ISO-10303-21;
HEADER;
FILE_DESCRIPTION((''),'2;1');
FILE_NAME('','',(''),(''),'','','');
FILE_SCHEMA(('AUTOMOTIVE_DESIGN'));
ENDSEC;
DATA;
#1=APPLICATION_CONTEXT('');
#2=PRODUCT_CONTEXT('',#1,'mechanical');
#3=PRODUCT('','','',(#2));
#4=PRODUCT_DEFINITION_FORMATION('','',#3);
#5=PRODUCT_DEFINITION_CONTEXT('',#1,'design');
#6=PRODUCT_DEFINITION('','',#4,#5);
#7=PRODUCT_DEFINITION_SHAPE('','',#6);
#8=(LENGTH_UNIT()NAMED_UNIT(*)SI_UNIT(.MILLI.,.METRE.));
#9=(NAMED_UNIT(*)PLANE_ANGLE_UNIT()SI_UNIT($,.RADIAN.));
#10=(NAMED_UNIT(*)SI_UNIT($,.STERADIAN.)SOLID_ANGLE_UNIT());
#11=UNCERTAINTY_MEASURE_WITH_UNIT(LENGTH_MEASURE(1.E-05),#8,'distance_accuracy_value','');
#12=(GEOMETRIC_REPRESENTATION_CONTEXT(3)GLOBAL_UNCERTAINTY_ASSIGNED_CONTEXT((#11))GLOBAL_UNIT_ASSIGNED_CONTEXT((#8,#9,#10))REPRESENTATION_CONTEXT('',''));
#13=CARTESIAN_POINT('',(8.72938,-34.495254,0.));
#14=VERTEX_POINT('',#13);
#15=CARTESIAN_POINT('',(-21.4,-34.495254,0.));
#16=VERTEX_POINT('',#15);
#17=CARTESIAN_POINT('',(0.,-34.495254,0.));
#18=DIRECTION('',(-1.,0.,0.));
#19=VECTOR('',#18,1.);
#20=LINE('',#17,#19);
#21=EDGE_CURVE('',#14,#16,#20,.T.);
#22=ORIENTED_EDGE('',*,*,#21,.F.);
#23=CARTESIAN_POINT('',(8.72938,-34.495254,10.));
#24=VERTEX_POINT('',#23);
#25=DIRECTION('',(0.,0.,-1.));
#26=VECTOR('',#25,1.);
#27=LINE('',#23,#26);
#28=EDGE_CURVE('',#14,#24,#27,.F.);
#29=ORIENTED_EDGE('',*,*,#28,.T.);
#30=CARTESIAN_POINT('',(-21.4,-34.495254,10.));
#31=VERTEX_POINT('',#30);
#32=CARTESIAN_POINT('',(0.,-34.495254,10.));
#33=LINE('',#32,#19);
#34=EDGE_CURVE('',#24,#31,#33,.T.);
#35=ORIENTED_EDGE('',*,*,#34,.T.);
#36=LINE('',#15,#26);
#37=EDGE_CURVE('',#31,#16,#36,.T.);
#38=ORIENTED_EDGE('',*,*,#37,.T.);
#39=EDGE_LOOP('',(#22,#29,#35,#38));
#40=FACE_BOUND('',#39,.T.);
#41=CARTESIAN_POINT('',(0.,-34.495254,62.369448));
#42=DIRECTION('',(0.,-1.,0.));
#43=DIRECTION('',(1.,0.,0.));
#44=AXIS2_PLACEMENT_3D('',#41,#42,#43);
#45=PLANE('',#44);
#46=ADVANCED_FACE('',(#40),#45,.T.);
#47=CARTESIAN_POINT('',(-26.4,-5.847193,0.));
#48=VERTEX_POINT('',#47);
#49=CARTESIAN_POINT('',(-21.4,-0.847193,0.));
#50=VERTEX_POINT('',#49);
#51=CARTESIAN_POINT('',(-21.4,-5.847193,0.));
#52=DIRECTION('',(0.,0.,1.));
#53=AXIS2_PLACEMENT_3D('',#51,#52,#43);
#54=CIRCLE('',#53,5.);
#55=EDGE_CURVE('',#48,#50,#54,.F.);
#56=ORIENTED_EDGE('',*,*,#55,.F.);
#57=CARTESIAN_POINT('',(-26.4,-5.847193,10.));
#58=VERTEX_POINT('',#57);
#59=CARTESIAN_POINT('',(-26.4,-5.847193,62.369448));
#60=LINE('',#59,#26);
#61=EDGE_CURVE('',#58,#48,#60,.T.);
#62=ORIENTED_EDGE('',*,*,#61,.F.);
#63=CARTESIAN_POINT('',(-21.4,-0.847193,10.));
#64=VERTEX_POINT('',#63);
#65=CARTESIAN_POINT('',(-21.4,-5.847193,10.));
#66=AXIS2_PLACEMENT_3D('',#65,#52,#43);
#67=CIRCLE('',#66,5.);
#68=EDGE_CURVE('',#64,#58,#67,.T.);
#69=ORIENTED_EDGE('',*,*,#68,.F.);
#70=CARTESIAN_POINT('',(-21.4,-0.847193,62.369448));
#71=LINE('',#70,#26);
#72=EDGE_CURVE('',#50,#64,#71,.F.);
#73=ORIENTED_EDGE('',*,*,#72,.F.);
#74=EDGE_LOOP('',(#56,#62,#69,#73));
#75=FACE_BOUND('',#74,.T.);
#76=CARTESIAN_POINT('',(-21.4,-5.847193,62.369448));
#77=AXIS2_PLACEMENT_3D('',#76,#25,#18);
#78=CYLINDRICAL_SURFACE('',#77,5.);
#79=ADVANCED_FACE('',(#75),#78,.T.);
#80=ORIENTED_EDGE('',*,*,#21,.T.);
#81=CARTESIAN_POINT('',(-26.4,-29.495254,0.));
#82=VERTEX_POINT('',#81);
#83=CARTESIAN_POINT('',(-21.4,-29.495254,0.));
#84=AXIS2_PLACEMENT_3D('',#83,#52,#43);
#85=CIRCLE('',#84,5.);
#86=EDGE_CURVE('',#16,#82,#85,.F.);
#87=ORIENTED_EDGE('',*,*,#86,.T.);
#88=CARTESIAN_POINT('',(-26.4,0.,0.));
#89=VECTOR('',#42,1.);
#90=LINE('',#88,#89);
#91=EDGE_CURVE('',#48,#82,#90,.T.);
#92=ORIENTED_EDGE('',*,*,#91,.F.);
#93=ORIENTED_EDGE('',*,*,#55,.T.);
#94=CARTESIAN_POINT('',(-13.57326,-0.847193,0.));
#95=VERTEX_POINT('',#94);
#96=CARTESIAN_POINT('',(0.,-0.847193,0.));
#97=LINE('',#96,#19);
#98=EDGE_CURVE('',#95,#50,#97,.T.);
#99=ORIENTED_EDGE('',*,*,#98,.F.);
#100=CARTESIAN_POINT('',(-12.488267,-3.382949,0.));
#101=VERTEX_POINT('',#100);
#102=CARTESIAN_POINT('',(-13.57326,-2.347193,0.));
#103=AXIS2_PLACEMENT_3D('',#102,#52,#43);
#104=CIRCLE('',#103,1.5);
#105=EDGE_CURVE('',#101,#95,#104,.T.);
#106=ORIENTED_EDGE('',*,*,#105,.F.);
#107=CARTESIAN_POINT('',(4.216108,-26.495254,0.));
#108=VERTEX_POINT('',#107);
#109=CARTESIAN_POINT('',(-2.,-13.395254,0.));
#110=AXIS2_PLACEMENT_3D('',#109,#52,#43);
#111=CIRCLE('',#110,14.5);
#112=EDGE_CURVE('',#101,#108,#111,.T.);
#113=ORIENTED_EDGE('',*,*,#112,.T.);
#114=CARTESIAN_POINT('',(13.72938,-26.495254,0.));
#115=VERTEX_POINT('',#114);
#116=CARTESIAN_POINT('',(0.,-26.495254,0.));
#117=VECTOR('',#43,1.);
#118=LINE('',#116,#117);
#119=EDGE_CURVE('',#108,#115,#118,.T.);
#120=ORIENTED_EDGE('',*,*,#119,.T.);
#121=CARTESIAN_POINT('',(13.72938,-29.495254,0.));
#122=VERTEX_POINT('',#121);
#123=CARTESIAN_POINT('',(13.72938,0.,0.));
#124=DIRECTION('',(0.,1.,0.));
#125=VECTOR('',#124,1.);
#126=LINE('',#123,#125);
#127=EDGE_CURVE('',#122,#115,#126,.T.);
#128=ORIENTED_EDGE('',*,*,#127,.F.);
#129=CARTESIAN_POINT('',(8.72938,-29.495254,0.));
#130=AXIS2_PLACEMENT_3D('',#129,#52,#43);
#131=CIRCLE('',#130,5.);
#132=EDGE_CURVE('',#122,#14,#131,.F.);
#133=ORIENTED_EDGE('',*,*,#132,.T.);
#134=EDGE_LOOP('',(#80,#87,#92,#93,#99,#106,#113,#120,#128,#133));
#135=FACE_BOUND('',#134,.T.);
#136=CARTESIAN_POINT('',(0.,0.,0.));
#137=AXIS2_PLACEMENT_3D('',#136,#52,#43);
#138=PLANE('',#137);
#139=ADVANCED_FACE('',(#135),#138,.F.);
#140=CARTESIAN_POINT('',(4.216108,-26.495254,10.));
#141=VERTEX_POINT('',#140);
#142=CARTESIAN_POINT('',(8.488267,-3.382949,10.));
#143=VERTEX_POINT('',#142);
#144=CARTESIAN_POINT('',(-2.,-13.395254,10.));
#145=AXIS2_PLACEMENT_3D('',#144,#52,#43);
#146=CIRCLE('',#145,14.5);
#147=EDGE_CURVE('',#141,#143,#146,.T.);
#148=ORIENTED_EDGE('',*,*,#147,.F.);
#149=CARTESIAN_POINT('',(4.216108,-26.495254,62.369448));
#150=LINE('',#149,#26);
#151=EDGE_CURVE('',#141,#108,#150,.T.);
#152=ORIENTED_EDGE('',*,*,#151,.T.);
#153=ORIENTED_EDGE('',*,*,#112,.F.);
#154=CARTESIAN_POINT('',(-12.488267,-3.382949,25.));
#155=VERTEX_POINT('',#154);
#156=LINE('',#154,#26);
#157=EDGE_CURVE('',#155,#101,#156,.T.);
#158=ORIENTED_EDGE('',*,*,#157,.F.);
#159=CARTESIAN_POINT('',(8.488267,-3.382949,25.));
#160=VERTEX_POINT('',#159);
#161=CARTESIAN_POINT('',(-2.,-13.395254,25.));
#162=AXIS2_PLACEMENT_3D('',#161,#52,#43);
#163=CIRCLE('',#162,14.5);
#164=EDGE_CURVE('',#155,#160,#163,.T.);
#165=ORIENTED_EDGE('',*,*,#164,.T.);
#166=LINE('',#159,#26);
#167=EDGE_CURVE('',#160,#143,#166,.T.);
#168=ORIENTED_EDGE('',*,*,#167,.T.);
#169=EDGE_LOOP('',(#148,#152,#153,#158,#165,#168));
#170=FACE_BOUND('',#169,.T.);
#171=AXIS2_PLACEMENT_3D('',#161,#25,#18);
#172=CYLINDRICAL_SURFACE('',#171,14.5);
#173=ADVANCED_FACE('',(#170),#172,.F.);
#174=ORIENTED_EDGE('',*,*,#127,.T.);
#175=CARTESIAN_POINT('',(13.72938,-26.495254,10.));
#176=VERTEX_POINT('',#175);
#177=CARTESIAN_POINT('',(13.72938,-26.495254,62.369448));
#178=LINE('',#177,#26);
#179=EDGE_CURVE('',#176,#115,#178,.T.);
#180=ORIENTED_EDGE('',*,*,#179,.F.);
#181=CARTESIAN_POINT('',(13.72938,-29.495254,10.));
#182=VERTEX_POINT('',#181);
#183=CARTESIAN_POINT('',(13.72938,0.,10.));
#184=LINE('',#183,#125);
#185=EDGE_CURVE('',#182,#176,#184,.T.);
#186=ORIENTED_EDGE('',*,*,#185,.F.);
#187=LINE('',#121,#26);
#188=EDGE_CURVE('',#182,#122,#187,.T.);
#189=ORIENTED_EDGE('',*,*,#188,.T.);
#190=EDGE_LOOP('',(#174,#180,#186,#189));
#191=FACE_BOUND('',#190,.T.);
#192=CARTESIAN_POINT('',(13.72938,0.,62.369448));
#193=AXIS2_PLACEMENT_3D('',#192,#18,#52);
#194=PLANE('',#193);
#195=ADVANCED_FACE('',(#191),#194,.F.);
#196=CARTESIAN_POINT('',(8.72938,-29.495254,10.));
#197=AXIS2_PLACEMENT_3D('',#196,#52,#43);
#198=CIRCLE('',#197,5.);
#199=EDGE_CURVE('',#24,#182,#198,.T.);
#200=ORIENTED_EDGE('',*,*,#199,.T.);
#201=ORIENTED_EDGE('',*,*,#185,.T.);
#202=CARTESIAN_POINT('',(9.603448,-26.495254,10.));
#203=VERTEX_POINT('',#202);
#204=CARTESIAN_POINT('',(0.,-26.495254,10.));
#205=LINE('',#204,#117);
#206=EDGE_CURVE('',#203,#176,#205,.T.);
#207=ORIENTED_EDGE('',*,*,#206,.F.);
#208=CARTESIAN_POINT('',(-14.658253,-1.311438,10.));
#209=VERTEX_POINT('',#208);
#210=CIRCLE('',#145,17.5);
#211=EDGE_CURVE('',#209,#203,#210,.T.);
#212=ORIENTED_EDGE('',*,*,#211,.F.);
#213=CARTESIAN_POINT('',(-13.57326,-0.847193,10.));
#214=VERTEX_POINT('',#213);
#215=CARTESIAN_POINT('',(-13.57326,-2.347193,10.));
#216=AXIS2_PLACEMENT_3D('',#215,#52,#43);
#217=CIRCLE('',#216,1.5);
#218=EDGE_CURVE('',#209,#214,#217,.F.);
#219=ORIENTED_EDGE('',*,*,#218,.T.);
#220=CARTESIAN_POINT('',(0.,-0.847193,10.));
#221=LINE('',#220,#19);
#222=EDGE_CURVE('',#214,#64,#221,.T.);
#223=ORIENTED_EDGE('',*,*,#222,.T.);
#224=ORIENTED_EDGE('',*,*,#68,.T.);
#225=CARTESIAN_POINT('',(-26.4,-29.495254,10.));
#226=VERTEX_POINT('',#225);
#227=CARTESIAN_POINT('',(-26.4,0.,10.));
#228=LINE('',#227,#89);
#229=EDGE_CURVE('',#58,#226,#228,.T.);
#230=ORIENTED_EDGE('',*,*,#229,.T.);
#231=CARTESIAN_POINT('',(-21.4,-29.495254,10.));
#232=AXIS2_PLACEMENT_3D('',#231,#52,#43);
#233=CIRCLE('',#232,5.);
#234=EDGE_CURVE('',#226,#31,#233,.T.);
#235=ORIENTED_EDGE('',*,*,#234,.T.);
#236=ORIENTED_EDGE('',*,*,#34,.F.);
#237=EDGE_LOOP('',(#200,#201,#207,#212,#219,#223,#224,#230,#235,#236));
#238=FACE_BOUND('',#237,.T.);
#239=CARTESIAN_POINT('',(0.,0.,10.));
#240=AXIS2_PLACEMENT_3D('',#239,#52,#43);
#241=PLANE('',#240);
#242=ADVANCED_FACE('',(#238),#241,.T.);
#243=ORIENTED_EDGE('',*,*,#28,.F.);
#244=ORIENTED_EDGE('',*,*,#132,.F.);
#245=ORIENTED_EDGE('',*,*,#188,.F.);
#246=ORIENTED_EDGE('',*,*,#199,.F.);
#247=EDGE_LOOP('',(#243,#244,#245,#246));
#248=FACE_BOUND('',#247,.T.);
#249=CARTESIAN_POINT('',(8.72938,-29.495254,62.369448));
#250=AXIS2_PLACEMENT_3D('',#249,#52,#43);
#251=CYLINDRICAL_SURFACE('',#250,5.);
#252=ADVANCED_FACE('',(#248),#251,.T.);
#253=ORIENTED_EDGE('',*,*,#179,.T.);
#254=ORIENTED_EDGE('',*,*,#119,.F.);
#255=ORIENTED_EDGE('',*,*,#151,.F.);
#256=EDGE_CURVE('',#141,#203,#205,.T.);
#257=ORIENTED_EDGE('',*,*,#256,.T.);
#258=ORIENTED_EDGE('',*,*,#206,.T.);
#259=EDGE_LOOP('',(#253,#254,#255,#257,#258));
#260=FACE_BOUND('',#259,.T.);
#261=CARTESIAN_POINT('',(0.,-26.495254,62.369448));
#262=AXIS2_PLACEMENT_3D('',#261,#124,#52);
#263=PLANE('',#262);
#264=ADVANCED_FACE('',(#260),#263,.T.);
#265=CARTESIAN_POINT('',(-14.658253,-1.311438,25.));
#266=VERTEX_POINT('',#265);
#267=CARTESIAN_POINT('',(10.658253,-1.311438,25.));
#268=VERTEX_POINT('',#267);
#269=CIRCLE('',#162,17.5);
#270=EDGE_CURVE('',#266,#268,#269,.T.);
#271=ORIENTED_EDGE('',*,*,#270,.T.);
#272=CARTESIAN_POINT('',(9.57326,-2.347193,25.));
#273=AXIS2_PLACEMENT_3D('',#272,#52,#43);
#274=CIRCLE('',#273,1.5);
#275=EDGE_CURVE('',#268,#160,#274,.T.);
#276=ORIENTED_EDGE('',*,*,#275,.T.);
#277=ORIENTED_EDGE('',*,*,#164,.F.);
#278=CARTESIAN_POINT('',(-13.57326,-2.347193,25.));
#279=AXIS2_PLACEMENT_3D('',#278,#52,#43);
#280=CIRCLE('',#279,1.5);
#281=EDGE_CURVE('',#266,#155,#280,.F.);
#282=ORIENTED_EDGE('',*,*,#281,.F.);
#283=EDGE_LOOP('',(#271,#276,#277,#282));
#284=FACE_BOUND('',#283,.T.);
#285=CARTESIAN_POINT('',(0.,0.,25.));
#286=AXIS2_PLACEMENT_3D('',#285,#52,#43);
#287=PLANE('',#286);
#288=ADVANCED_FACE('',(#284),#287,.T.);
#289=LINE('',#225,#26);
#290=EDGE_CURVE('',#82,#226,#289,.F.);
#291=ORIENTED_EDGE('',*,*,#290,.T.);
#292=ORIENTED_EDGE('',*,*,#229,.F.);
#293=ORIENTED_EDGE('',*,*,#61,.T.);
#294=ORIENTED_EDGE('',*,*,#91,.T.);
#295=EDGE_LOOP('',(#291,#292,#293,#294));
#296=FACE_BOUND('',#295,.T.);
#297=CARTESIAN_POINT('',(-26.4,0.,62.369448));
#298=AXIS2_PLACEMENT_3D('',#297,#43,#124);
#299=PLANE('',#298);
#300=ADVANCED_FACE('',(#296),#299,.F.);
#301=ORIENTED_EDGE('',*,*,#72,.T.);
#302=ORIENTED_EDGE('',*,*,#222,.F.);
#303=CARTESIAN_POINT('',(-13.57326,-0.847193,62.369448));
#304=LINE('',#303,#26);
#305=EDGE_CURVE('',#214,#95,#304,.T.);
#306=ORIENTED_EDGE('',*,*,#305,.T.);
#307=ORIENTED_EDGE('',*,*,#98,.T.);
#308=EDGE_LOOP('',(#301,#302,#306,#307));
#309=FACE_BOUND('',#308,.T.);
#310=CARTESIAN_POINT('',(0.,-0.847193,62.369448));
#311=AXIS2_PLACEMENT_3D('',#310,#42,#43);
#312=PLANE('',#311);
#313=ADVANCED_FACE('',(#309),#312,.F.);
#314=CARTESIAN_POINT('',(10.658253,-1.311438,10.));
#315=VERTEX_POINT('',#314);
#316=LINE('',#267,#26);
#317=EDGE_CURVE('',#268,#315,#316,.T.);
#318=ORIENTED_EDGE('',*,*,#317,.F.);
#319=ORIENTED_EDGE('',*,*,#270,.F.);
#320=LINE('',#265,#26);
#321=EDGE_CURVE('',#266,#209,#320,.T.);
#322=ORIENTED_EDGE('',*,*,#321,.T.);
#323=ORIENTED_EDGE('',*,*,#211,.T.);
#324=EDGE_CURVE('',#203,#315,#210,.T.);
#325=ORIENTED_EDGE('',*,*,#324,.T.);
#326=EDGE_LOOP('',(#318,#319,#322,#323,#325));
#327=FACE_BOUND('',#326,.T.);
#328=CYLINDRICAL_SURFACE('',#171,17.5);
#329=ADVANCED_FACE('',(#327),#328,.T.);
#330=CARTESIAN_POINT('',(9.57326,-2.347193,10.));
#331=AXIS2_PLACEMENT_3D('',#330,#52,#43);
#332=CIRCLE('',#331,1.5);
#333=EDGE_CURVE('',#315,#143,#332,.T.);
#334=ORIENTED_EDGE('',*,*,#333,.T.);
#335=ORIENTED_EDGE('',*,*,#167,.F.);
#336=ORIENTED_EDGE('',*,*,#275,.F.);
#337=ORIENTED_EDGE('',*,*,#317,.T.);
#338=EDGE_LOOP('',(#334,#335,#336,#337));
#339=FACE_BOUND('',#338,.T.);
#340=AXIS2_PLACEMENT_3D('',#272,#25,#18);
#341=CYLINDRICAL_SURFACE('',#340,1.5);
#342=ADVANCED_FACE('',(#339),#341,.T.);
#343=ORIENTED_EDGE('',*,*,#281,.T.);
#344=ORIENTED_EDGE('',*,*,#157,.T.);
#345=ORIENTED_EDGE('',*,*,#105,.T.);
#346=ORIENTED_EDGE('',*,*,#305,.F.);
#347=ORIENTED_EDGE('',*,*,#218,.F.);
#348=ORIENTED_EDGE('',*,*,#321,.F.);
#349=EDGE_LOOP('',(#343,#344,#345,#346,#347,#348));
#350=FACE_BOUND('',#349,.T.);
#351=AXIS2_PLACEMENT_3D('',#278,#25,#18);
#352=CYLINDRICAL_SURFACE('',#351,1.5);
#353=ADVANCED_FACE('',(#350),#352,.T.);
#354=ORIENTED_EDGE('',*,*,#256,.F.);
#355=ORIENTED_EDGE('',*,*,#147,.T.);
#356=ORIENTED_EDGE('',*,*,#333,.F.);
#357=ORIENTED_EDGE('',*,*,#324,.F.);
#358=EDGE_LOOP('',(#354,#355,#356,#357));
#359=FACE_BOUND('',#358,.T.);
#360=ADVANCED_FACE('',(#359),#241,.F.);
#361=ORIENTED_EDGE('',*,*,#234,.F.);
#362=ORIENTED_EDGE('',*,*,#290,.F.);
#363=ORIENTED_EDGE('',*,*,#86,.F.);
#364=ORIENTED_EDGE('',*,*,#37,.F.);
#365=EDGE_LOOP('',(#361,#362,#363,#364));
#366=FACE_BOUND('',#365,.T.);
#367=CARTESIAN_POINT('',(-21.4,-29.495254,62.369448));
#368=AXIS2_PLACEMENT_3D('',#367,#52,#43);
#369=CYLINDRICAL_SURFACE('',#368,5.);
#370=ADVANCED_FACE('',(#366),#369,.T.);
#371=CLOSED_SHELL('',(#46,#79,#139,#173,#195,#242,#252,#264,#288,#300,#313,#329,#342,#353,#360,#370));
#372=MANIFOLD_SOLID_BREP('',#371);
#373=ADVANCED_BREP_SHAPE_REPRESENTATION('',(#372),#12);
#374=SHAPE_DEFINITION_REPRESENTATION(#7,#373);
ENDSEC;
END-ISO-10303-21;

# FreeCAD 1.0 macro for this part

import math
import FreeCAD as App
import Part
import Sketcher

V = App.Vector


def edges_at(feature, points):
    """Names of the edges that pass closest to the given points."""
    edges = feature.Shape.Edges
    near = lambda p: min(range(len(edges)), key=lambda i: edges[i].distToShape(Part.Vertex(*p))[0])
    return sorted({f"Edge{near(p) + 1}" for p in points})

doc = App.newDocument("Part")
body = doc.addObject("PartDesign::Body", "Body")

sketch1 = doc.addObject("Sketcher::SketchObject", "Sketch")
body.addObject(sketch1)
sketch1.AttachmentSupport = (doc.XY_Plane, [""])
sketch1.MapMode = "FlatFace"
sketch1.AttachmentOffset = App.Placement(V(0, 0, 10), App.Rotation())
sketch1.addGeometry([
    Part.ArcOfCircle(Part.Circle(V(-2, -13.395254, 0), V(0, 0, 1), 14.5), math.radians(136.329997), math.radians(403.670003)),
    Part.ArcOfCircle(Part.Circle(V(-13.57326, -2.347193, 0), V(0, 0, 1), 1.5), math.radians(-43.670003), math.radians(136.33)),
    Part.ArcOfCircle(Part.Circle(V(-2, -13.395254, 0), V(0, 0, 1), 17.5), math.radians(136.329997), math.radians(403.670003)),
    Part.ArcOfCircle(Part.Circle(V(9.57326, -2.347193, 0), V(0, 0, 1), 1.5), math.radians(43.670003), math.radians(223.670003)),
], False)
sketch1.addConstraint([
    Sketcher.Constraint("Tangent", 0, 1, 1, 1),
    Sketcher.Constraint("Tangent", 1, 2, 2, 1),
    Sketcher.Constraint("Tangent", 2, 2, 3, 1),
    Sketcher.Constraint("Tangent", 3, 2, 0, 2),
    Sketcher.Constraint("Coincident", 2, 3, 0, 3),
    Sketcher.Constraint("Horizontal", 1, 3, 3, 3),
    Sketcher.Constraint("Radius", 0, 14.5),
    Sketcher.Constraint("Radius", 1, 1.5),
    Sketcher.Constraint("DistanceX", 0, 3, -1, 1, 2.0),
    Sketcher.Constraint("DistanceX", 1, 3, -1, 1, 13.57326),
    Sketcher.Constraint("DistanceY", 0, 1, -1, 1, 3.382949),
])
pad1 = doc.addObject("PartDesign::Pad", "Pad")
body.addObject(pad1)
pad1.Profile = sketch1
pad1.Length = 15

sketch2 = doc.addObject("Sketcher::SketchObject", "Sketch001")
body.addObject(sketch2)
sketch2.AttachmentSupport = (doc.XY_Plane, [""])
sketch2.MapMode = "FlatFace"
sketch2.addGeometry([
    Part.ArcOfCircle(Part.Circle(V(-13.57326, -2.347193, 0), V(0, 0, 1), 1.5), math.radians(-43.670003), math.radians(90)),
    Part.LineSegment(V(-13.57326, -0.847193, 0), V(-26.4, -0.847193, 0)),
    Part.LineSegment(V(-26.4, -0.847193, 0), V(-26.4, -34.495254, 0)),
    Part.LineSegment(V(-26.4, -34.495254, 0), V(13.72938, -34.495254, 0)),
    Part.LineSegment(V(13.72938, -34.495254, 0), V(13.72938, -26.495254, 0)),
    Part.LineSegment(V(13.72938, -26.495254, 0), V(4.216108, -26.495254, 0)),
    Part.ArcOfCircle(Part.Circle(V(-2, -13.395254, 0), V(0, 0, 1), 14.5), math.radians(-115.384904), math.radians(-64.615096)),
    Part.LineSegment(V(-8.216108, -26.495254, 0), V(-11.4, -26.495254, 0)),
    Part.LineSegment(V(-11.4, -26.495254, 0), V(-11.4, -24.435635, 0)),
    Part.ArcOfCircle(Part.Circle(V(-2, -13.395254, 0), V(0, 0, 1), 14.5), math.radians(136.329997), math.radians(229.588265)),
], False)
sketch2.addConstraint([
    Sketcher.Constraint("Tangent", 0, 2, 1, 1),
    Sketcher.Constraint("Coincident", 1, 2, 2, 1),
    Sketcher.Constraint("Coincident", 2, 2, 3, 1),
    Sketcher.Constraint("Coincident", 3, 2, 4, 1),
    Sketcher.Constraint("Coincident", 4, 2, 5, 1),
    Sketcher.Constraint("Coincident", 5, 2, 6, 2),
    Sketcher.Constraint("Coincident", 6, 1, 7, 1),
    Sketcher.Constraint("Coincident", 7, 2, 8, 1),
    Sketcher.Constraint("Coincident", 8, 2, 9, 2),
    Sketcher.Constraint("Tangent", 9, 1, 0, 1),
    Sketcher.Constraint("Horizontal", 1),
    Sketcher.Constraint("Vertical", 2),
    Sketcher.Constraint("Horizontal", 3),
    Sketcher.Constraint("Vertical", 4),
    Sketcher.Constraint("Horizontal", 5),
    Sketcher.Constraint("Horizontal", 7),
    Sketcher.Constraint("Vertical", 8),
    Sketcher.Constraint("Coincident", 9, 3, 6, 3),
    Sketcher.Constraint("Equal", 6, 9),
    Sketcher.Constraint("Horizontal", 5, 2, 6, 1),
    Sketcher.Constraint("Radius", 0, 1.5),
    Sketcher.Constraint("Radius", 6, 14.5),
    Sketcher.Constraint("DistanceY", 4, 1, 4, 2, 8.0),
    Sketcher.Constraint("DistanceX", 6, 3, -1, 1, 2.0),
    Sketcher.Constraint("DistanceX", 2, 2, 7, 2, 15.0),
    Sketcher.Constraint("DistanceX", 1, 2, -1, 1, 26.4),
    Sketcher.Constraint("DistanceY", 2, 2, 6, 3, 21.1),
    Sketcher.Constraint("DistanceX", 1, 2, 1, 1, 12.82674),
    Sketcher.Constraint("DistanceX", 3, 1, 3, 2, 40.12938),
    Sketcher.Constraint("DistanceY", 9, 1, -1, 1, 3.382949),
])
pad2 = doc.addObject("PartDesign::Pad", "Pad001")
body.addObject(pad2)
pad2.Profile = sketch2
pad2.Length = 10
doc.recompute()

fillet = doc.addObject("PartDesign::Fillet", "Fillet")
body.addObject(fillet)
fillet.Base = (pad2, edges_at(pad2, [(-26.4, -34.495, 5), (13.729, -34.495, 5), (-26.4, -0.847, 5)]))
fillet.Radius = 5

sketch3 = doc.addObject("Sketcher::SketchObject", "Sketch002")
body.addObject(sketch3)
sketch3.AttachmentSupport = (doc.XY_Plane, [""])
sketch3.MapMode = "FlatFace"
sketch3.addGeometry([
    Part.LineSegment(V(-8.216108, -26.495254, 0), V(-11.4, -26.495254, 0)),
    Part.LineSegment(V(-11.4, -26.495254, 0), V(-11.4, -24.435635, 0)),
    Part.ArcOfCircle(Part.Circle(V(-2, -13.395254, 0), V(0, 0, 1), 14.5), math.radians(-130.411735), math.radians(-115.384904)),
], False)
sketch3.addConstraint([
    Sketcher.Constraint("Coincident", 0, 2, 1, 1),
    Sketcher.Constraint("Coincident", 1, 2, 2, 1),
    Sketcher.Constraint("Coincident", 2, 2, 0, 1),
    Sketcher.Constraint("Horizontal", 0),
    Sketcher.Constraint("Vertical", 1),
    Sketcher.Constraint("Radius", 2, 14.5),
    Sketcher.Constraint("DistanceX", 2, 3, -1, 1, 2.0),
    Sketcher.Constraint("DistanceX", 0, 2, -1, 1, 11.4),
    Sketcher.Constraint("DistanceY", 0, 2, 2, 3, 13.1),
    Sketcher.Constraint("DistanceY", 2, 3, -1, 1, 13.395254),
])
pad3 = doc.addObject("PartDesign::Pad", "Pad002")
body.addObject(pad3)
pad3.Profile = sketch3
pad3.Length = 10

doc.recompute()
